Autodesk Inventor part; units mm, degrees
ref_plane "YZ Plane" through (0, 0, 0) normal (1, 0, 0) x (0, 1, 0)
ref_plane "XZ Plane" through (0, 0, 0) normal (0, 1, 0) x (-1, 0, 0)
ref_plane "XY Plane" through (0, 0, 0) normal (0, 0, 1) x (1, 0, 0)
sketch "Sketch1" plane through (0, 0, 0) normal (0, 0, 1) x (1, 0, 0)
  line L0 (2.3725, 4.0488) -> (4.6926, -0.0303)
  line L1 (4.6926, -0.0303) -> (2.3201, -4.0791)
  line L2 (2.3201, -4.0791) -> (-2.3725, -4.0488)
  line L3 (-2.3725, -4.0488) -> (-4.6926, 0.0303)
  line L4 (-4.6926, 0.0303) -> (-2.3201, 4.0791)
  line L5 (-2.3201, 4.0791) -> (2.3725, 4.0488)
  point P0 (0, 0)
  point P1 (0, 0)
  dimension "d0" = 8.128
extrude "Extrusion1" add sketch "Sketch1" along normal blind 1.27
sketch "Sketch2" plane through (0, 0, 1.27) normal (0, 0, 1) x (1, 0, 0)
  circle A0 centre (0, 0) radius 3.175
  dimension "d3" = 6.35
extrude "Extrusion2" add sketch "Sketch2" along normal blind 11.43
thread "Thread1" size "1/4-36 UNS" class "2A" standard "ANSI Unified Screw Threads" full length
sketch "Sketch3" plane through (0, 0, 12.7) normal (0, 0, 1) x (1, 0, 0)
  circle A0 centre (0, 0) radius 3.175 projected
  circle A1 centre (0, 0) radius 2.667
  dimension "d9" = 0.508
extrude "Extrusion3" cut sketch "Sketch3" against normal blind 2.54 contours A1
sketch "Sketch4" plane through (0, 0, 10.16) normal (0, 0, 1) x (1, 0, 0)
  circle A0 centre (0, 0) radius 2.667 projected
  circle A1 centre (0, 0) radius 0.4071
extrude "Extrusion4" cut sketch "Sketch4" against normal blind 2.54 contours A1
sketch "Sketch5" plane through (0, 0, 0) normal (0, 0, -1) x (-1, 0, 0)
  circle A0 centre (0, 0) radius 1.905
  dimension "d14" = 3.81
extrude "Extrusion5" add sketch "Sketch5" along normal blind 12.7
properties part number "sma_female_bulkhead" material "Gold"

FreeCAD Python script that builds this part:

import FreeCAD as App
import Part
import Sketcher

V = App.Vector
Q = App.Units.Quantity


def add_polygon(sketch, points):
    """Adds a closed chain of lines whose ends are joined by coincident constraints."""
    first, n = sketch.GeometryCount, len(points)
    for a, b in zip(points, points[1:] + points[:1]):
        sketch.addGeometry(Part.LineSegment(App.Vector(*a, 0), App.Vector(*b, 0)), False)
    for i in range(n):
        sketch.addConstraint(Sketcher.Constraint("Coincident", first + i, 2, first + (i + 1) % n, 1))

doc = App.newDocument("Part")
params = doc.addObject("Spreadsheet::Sheet", "Params")
for row, (alias, value) in enumerate([
    ("pad1_length", "0.05 in"),
    ("sketch2_diameter", "0.25 in"),
    ("pad2_length", "0.45 in"),
    ("sketch3_diameter", "0.21 in"),
    ("pocket1_length", "0.1 in"),
    ("pocket2_length", "0.1 in"),
    ("sketch5_diameter", "0.15 in"),
    ("pad3_length", "0.5 in"),
], start=1):
    params.set(f"A{row}", alias)
    params.set(f"B{row}", "=" + value)
    params.setAlias(f"B{row}", alias)

body = doc.addObject("PartDesign::Body", "Body")

# Sketch on XY plane
sketch1 = body.newObject("Sketcher::SketchObject", "Sketch")
sketch1.AttachmentSupport = (doc.getObject("XY_Plane"), [""])
sketch1.MapMode = "FlatFace"
add_polygon(sketch1, [(4.7, 0), (2.4, 4), (-2.3, 4.1), (-4.7, 0), (-2.4, -4), (2.3, -4.1)])  # lines 0-5
sketch1.addConstraint(Sketcher.Constraint("Symmetric", 0, 2, 3, 2, -1, 1))
sketch1.addConstraint(Sketcher.Constraint("Symmetric", 1, 2, 4, 2, -1, 1))
sketch1.addConstraint(Sketcher.Constraint("Symmetric", 2, 2, 5, 2, -1, 1))
sketch1.addConstraint(Sketcher.Constraint("Equal", 0, 1))
sketch1.addConstraint(Sketcher.Constraint("Equal", 1, 2))
sketch1.addConstraint(Sketcher.Constraint("DistanceY", 3, 2, 1, 2, Q("0.32 in")))
sketch1.addConstraint(Sketcher.Constraint("Angle", 0, Q("119.6302 deg")))
sketch1.addConstraint(Sketcher.Constraint("Angle", 1, Q("179.63 deg")))
sketch1.addConstraint(Sketcher.Constraint("Angle", 2, Q("-120.3693 deg")))
pad1 = body.newObject("PartDesign::Pad", "Pad")
pad1.Profile = sketch1
pad1.setExpression("Length", "Params.pad1_length")

# Sketch on XY plane
sketch2 = body.newObject("Sketcher::SketchObject", "Sketch001")
sketch2.AttachmentSupport = (doc.getObject("XY_Plane"), [""])
sketch2.MapMode = "FlatFace"
sketch2.AttachmentOffset = App.Placement(V(0, 0, 0.05 * 25.4), App.Rotation())
sketch2.addGeometry(Part.Circle(V(0, 0, 0), V(0, 0, 1), 3.2), False)
sketch2.addConstraint(Sketcher.Constraint("Coincident", 0, 3, -1, 1))
sketch2.addConstraint(Sketcher.Constraint("Diameter", 0, Q("0.25 in")))
sketch2.setExpression("Constraints[1]", "Params.sketch2_diameter")
pad2 = body.newObject("PartDesign::Pad", "Pad001")
pad2.Profile = sketch2
pad2.setExpression("Length", "Params.pad2_length")

# Sketch on XY plane
sketch3 = body.newObject("Sketcher::SketchObject", "Sketch002")
sketch3.AttachmentSupport = (doc.getObject("XY_Plane"), [""])
sketch3.MapMode = "FlatFace"
sketch3.AttachmentOffset = App.Placement(V(0, 0, 0.5 * 25.4), App.Rotation())
sketch3.addGeometry(Part.Circle(V(0, 0, 0), V(0, 0, 1), 2.7), False)
sketch3.addConstraint(Sketcher.Constraint("Coincident", 0, 3, -1, 1))
sketch3.addConstraint(Sketcher.Constraint("Diameter", 0, Q("0.21 in")))
sketch3.setExpression("Constraints[1]", "Params.sketch3_diameter")
pocket1 = body.newObject("PartDesign::Pocket", "Pocket")
pocket1.Profile = sketch3
pocket1.setExpression("Length", "Params.pocket1_length")

# Sketch on XY plane
sketch4 = body.newObject("Sketcher::SketchObject", "Sketch003")
sketch4.AttachmentSupport = (doc.getObject("XY_Plane"), [""])
sketch4.MapMode = "FlatFace"
sketch4.AttachmentOffset = App.Placement(V(0, 0, 0.4 * 25.4), App.Rotation())
sketch4.addGeometry(Part.Circle(V(0, 0, 0), V(0, 0, 1), 0.41), False)
sketch4.addConstraint(Sketcher.Constraint("Coincident", 0, 3, -1, 1))
sketch4.addConstraint(Sketcher.Constraint("Diameter", 0, 0.8142))
pocket2 = body.newObject("PartDesign::Pocket", "Pocket001")
pocket2.Profile = sketch4
pocket2.setExpression("Length", "Params.pocket2_length")

# Sketch on XY plane
sketch5 = body.newObject("Sketcher::SketchObject", "Sketch004")
sketch5.AttachmentSupport = (doc.getObject("XY_Plane"), [""])
sketch5.MapMode = "FlatFace"
sketch5.addGeometry(Part.Circle(V(0, 0, 0), V(0, 0, 1), 1.9), False)
sketch5.addConstraint(Sketcher.Constraint("Coincident", 0, 3, -1, 1))
sketch5.addConstraint(Sketcher.Constraint("Diameter", 0, Q("0.15 in")))
sketch5.setExpression("Constraints[1]", "Params.sketch5_diameter")
pad3 = body.newObject("PartDesign::Pad", "Pad002")
pad3.Profile = sketch5
pad3.setExpression("Length", "Params.pad3_length")
pad3.Reversed = True

doc.recompute()
